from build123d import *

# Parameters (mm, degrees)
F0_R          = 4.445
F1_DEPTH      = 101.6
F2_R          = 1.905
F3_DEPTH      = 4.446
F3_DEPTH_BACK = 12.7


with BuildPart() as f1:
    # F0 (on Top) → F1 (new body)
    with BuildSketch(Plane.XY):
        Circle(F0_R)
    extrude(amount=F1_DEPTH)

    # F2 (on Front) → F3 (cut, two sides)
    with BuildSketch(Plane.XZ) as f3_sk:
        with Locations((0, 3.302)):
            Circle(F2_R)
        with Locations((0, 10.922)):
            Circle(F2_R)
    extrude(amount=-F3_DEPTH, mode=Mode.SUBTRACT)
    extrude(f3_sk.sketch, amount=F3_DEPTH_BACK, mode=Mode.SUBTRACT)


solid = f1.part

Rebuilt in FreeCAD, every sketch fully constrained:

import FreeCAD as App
import Part
import Sketcher
from FreeCAD import Vector
Q = App.Units.Quantity

doc = App.newDocument("Part")
params = doc.addObject("Spreadsheet::Sheet", "Params")
for row, (alias, value) in enumerate([
    ("sketch1_diameter", "0.35 in"),
    ("pad1_length", "4 in"),
    ("sketch2_diameter", "0.15 in"),
], start=1):
    params.set(f"A{row}", alias)
    params.set(f"B{row}", "=" + value)
    params.setAlias(f"B{row}", alias)

body = doc.addObject("PartDesign::Body", "Body")

sketch1 = body.newObject("Sketcher::SketchObject", "Sketch")
sketch1.AttachmentSupport = (doc.getObject("XY_Plane"), [""])
sketch1.MapMode = "FlatFace"
sketch1.addGeometry(Part.Circle(Vector(0, 0, 0), Vector(0, 0, 1), 4.4), False)
sketch1.addConstraint(Sketcher.Constraint("Coincident", 0, 3, -1, 1))
sketch1.addConstraint(Sketcher.Constraint("Diameter", 0, Q("0.35 in")))
sketch1.setExpression("Constraints[1]", "Params.sketch1_diameter")
pad1 = body.newObject("PartDesign::Pad", "Pad")
pad1.Profile = sketch1
pad1.setExpression("Length", "Params.pad1_length")

sketch2 = body.newObject("Sketcher::SketchObject", "Sketch001")
sketch2.AttachmentSupport = (doc.getObject("XZ_Plane"), [""])
sketch2.MapMode = "FlatFace"
sketch2.addGeometry(Part.Circle(Vector(0, 3.3, 0), Vector(0, 0, 1), 1.9), False)
sketch2.addGeometry(Part.Circle(Vector(0, 10.9, 0), Vector(0, 0, 1), 1.9), False)
sketch2.addConstraint(Sketcher.Constraint("Equal", 0, 1))
sketch2.addConstraint(Sketcher.Constraint("PointOnObject", 0, 3, -2))
sketch2.addConstraint(Sketcher.Constraint("PointOnObject", 1, 3, -2))
sketch2.addConstraint(Sketcher.Constraint("Diameter", 0, Q("0.15 in")))
sketch2.addConstraint(Sketcher.Constraint("DistanceY", 0, 3, 1, 3, Q("0.3 in")))
sketch2.addConstraint(Sketcher.Constraint("DistanceY", -1, 1, 0, 3, Q("0.13 in")))
sketch2.setExpression("Constraints[3]", "Params.sketch2_diameter")
pocket1 = body.newObject("PartDesign::Pocket", "Pocket")
pocket1.Profile = sketch2
pocket1.Type = "ThroughAll"
pocket1.Midplane = True

doc.recompute()
